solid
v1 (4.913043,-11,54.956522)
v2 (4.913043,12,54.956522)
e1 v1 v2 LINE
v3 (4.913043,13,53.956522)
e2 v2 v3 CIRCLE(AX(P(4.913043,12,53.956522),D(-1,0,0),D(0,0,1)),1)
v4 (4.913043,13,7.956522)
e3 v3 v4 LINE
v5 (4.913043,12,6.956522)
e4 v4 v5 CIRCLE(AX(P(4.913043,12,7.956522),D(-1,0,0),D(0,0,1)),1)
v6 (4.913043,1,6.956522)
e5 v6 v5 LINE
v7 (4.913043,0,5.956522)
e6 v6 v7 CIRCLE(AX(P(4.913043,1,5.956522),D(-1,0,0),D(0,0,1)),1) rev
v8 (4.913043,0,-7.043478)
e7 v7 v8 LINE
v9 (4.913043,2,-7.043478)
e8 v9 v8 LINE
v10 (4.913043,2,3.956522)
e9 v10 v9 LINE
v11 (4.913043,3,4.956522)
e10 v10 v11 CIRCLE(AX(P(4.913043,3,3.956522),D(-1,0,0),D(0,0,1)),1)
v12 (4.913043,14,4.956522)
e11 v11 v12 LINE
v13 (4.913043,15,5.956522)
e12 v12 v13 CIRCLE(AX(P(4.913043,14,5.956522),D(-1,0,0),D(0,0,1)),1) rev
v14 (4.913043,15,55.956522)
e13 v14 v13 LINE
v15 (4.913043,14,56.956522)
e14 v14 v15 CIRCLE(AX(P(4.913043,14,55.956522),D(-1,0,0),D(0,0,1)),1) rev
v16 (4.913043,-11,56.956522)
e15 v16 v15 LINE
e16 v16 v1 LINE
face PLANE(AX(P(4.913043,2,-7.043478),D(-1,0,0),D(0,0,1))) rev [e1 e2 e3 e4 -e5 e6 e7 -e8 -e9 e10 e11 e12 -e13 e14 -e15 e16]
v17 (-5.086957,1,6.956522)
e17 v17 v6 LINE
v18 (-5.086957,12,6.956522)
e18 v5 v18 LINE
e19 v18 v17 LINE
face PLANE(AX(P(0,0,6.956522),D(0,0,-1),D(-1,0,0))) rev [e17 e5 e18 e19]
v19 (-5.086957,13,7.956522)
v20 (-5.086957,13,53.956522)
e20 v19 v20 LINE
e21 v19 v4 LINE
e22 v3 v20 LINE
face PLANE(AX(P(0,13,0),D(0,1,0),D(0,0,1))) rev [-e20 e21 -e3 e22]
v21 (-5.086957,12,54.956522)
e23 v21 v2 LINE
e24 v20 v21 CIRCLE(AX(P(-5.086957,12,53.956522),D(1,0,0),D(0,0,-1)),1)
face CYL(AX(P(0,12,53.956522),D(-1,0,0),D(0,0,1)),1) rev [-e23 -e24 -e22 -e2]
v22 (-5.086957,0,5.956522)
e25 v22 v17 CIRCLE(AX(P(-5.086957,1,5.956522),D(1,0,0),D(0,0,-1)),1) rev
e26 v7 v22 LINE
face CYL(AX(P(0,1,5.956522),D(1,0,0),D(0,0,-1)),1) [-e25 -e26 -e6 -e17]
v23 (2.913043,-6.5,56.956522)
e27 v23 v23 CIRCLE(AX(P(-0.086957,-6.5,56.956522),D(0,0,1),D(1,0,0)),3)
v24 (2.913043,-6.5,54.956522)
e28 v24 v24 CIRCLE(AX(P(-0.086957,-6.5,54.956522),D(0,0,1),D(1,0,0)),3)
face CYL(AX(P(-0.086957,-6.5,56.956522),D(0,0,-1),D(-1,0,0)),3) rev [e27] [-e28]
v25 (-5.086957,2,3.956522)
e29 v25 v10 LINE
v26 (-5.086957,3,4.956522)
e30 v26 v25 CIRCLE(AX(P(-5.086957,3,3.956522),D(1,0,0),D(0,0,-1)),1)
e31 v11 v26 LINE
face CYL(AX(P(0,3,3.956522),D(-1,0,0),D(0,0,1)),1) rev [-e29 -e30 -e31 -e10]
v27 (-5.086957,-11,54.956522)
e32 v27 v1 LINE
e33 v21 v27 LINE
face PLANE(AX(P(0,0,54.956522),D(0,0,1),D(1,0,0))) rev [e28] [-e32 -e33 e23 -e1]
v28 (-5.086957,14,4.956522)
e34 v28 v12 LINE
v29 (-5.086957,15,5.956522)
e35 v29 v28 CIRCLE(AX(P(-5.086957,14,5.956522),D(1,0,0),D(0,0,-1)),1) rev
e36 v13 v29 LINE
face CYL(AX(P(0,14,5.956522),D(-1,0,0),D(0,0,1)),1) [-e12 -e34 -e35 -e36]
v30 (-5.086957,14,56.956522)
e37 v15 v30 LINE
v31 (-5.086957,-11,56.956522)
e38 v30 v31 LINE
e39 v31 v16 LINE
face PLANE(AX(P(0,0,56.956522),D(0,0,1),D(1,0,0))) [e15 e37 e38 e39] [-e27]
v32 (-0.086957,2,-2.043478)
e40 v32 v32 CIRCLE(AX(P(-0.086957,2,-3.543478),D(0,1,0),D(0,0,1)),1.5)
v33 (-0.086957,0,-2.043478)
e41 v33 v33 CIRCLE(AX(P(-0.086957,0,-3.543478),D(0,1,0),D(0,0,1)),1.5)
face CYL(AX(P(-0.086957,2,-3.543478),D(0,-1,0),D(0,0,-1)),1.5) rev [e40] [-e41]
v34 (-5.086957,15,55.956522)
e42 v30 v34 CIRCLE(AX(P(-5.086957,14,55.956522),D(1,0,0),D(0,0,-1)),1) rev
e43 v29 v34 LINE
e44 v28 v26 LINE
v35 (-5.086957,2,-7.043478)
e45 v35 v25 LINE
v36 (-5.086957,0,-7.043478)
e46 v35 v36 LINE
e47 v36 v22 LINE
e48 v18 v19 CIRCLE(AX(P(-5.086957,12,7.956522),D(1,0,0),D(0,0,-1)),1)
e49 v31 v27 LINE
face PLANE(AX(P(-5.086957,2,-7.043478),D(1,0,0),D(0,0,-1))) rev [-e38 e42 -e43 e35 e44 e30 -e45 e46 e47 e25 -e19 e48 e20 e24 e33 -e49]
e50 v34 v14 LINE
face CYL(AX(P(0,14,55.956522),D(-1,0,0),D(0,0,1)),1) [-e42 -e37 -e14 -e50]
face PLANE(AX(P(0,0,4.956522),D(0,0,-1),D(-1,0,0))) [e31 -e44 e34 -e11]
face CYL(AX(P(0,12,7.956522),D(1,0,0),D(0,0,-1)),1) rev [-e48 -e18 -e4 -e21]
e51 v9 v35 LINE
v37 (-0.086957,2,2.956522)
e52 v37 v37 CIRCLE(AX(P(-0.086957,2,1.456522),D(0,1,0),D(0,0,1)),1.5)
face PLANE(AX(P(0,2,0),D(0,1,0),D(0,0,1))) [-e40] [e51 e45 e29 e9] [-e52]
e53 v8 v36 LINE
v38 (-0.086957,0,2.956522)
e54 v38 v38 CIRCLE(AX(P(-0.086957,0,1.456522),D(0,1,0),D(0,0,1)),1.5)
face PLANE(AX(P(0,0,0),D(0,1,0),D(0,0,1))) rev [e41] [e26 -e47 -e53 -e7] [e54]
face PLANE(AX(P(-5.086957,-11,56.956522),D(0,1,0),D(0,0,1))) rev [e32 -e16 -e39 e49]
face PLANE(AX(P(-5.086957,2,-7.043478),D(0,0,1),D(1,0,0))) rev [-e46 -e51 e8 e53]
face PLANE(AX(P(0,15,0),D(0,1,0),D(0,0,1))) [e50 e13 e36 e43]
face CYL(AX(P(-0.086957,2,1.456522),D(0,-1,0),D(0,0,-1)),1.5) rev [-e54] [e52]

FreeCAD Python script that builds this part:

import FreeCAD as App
import Part
import Sketcher
from FreeCAD import Vector
Q = App.Units.Quantity


def edges_at(feature, points):
    """Names of the edges that pass closest to the given points."""
    edges = feature.Shape.Edges
    near = lambda p: min(range(len(edges)), key=lambda i: edges[i].distToShape(Part.Vertex(*p))[0])
    return sorted({f"Edge{near(p) + 1}" for p in points})


def add_polygon(sketch, points):
    """Adds a closed chain of lines whose ends are joined by coincident constraints."""
    first, n = sketch.GeometryCount, len(points)
    for a, b in zip(points, points[1:] + points[:1]):
        sketch.addGeometry(Part.LineSegment(App.Vector(*a, 0), App.Vector(*b, 0)), False)
    for i in range(n):
        sketch.addConstraint(Sketcher.Constraint("Coincident", first + i, 2, first + (i + 1) % n, 1))

doc = App.newDocument("Part")
body = doc.addObject("PartDesign::Body", "Body")

sketch1 = body.newObject("Sketcher::SketchObject", "Sketch")
sketch1.AttachmentSupport = (doc.getObject("XZ_Plane"), [""])
sketch1.MapMode = "FlatFace"
add_polygon(sketch1, [(-5.1, -7), (-5.1, 5), (4.9, 5), (4.9, -7)])
sketch1.addGeometry(Part.Circle(Vector(-0.1, 1.5, 0), Vector(0, 0, 1), 1.5), False)
sketch1.addGeometry(Part.Circle(Vector(-0.1, -3.5, 0), Vector(0, 0, 1), 1.5), False)
sketch1.addConstraint([
    Sketcher.Constraint("Vertical", 0),
    Sketcher.Constraint("Horizontal", 1),
    Sketcher.Constraint("Vertical", 2),
    Sketcher.Constraint("Horizontal", 3),
    Sketcher.Constraint("Equal", 4, 5),
    Sketcher.Constraint("Vertical", 4, 3, 5, 3),
    Sketcher.Constraint("Diameter", 4, Q("3 mm")),
    Sketcher.Constraint("DistanceX", 1, 1, 1, 2, Q("10 mm")),
    Sketcher.Constraint("DistanceY", 0, 1, 0, 2, Q("12 mm")),
    Sketcher.Constraint("DistanceY", 5, 3, 4, 3, Q("5 mm")),
    Sketcher.Constraint("DistanceX", 0, 2, 4, 3, Q("5 mm")),
    Sketcher.Constraint("DistanceY", 4, 3, 0, 2, Q("3.5 mm")),
    Sketcher.Constraint("DistanceY", -1, 1, 4, 3, Q("1.456522 mm")),
    Sketcher.Constraint("DistanceX", 4, 3, -1, 1, Q("0.086957 mm")),
])
pad1 = body.newObject("PartDesign::Pad", "Pad")
pad1.Profile = sketch1
pad1.Length = 2
pad1.Reversed = True

sketch2 = body.newObject("Sketcher::SketchObject", "Sketch001")
sketch2.AttachmentSupport = (doc.getObject("XY_Plane"), [""])
sketch2.MapMode = "FlatFace"
sketch2.AttachmentOffset = App.Placement(Vector(0, 0, 4.956522), App.Rotation())
add_polygon(sketch2, [(-5, 13), (-5, 0), (5, 0), (5, 13)])
sketch2.addConstraint([
    Sketcher.Constraint("Vertical", 0),
    Sketcher.Constraint("Horizontal", 1),
    Sketcher.Constraint("Vertical", 2),
    Sketcher.Constraint("Horizontal", 3),
    Sketcher.Constraint("PointOnObject", 0, 2, -1),
    Sketcher.Constraint("DistanceX", 1, 1, 1, 2, Q("10 mm")),
    Sketcher.Constraint("DistanceY", 0, 2, 0, 1, Q("13 mm")),
    Sketcher.Constraint("DistanceX", 0, 2, -1, 1, Q("5.086957 mm")),
])
pad2 = body.newObject("PartDesign::Pad", "Pad001")
pad2.Profile = sketch2
pad2.Length = 2

sketch3 = body.newObject("Sketcher::SketchObject", "Sketch002")
sketch3.AttachmentSupport = (doc.getObject("XZ_Plane"), [""])
sketch3.MapMode = "FlatFace"
sketch3.AttachmentOffset = App.Placement(Vector(0, 0, -13), App.Rotation())
add_polygon(sketch3, [(-5, 5), (-5, 55), (5, 55), (5, 5)])
sketch3.addConstraint([
    Sketcher.Constraint("Vertical", 0),
    Sketcher.Constraint("Horizontal", 1),
    Sketcher.Constraint("Vertical", 2),
    Sketcher.Constraint("Horizontal", 3),
    Sketcher.Constraint("DistanceX", 1, 1, 1, 2, Q("10 mm")),
    Sketcher.Constraint("DistanceY", 0, 1, 0, 2, Q("50 mm")),
    Sketcher.Constraint("DistanceY", -1, 1, 0, 2, Q("54.956522 mm")),
    Sketcher.Constraint("DistanceX", 0, 2, -1, 1, Q("5.086957 mm")),
])
pad3 = body.newObject("PartDesign::Pad", "Pad002")
pad3.Profile = sketch3
pad3.Length = 2
pad3.Reversed = True

sketch4 = body.newObject("Sketcher::SketchObject", "Sketch003")
sketch4.AttachmentSupport = (doc.getObject("XY_Plane"), [""])
sketch4.MapMode = "FlatFace"
sketch4.AttachmentOffset = App.Placement(Vector(0, 0, 54.956522), App.Rotation())
add_polygon(sketch4, [(-5.1, 15), (-5.1, -11), (4.9, -11), (4.9, 15)])
sketch4.addGeometry(Part.Circle(Vector(-0.1, -6.5, 0), Vector(0, 0, 1), 3), False)
sketch4.addConstraint([
    Sketcher.Constraint("Vertical", 0),
    Sketcher.Constraint("Horizontal", 1),
    Sketcher.Constraint("Vertical", 2),
    Sketcher.Constraint("Horizontal", 3),
    Sketcher.Constraint("Diameter", 4, Q("6 mm")),
    Sketcher.Constraint("DistanceX", 1, 1, 1, 2, Q("10 mm")),
    Sketcher.Constraint("DistanceY", 0, 2, 0, 1, Q("26 mm")),
    Sketcher.Constraint("DistanceY", 0, 2, -1, 1, Q("11 mm")),
    Sketcher.Constraint("DistanceX", 0, 2, 4, 3, Q("5 mm")),
    Sketcher.Constraint("DistanceY", 4, 3, -1, 1, Q("6.5 mm")),
    Sketcher.Constraint("DistanceX", 4, 3, -1, 1, Q("0.086957 mm")),
])
pad4 = body.newObject("PartDesign::Pad", "Pad003")
pad4.Profile = sketch4
pad4.Length = 2
doc.recompute()

fillet = body.newObject("PartDesign::Fillet", "Fillet")
fillet.Base = (pad4, edges_at(pad4, [(-0.087, 15, 56.957)]))
fillet.Radius = 1
doc.recompute()

fillet2 = body.newObject("PartDesign::Fillet", "Fillet001")
fillet2.Base = (fillet, edges_at(fillet, [(-0.087, 13, 54.957)]))
fillet2.Radius = 1
doc.recompute()

fillet3 = body.newObject("PartDesign::Fillet", "Fillet002")
fillet3.Base = (fillet2, edges_at(fillet2, [(-0.087, 15, 4.957)]))
fillet3.Radius = 1
doc.recompute()

fillet4 = body.newObject("PartDesign::Fillet", "Fillet003")
fillet4.Base = (fillet3, edges_at(fillet3, [(-0.087, 13, 6.957)]))
fillet4.Radius = 1
doc.recompute()

fillet5 = body.newObject("PartDesign::Fillet", "Fillet004")
fillet5.Base = (fillet4, edges_at(fillet4, [(-0.087, 0, 6.957)]))
fillet5.Radius = 1
doc.recompute()

fillet6 = body.newObject("PartDesign::Fillet", "Fillet005")
fillet6.Base = (fillet5, edges_at(fillet5, [(-0.087, 2, 4.957)]))
fillet6.Radius = 1

doc.recompute()
